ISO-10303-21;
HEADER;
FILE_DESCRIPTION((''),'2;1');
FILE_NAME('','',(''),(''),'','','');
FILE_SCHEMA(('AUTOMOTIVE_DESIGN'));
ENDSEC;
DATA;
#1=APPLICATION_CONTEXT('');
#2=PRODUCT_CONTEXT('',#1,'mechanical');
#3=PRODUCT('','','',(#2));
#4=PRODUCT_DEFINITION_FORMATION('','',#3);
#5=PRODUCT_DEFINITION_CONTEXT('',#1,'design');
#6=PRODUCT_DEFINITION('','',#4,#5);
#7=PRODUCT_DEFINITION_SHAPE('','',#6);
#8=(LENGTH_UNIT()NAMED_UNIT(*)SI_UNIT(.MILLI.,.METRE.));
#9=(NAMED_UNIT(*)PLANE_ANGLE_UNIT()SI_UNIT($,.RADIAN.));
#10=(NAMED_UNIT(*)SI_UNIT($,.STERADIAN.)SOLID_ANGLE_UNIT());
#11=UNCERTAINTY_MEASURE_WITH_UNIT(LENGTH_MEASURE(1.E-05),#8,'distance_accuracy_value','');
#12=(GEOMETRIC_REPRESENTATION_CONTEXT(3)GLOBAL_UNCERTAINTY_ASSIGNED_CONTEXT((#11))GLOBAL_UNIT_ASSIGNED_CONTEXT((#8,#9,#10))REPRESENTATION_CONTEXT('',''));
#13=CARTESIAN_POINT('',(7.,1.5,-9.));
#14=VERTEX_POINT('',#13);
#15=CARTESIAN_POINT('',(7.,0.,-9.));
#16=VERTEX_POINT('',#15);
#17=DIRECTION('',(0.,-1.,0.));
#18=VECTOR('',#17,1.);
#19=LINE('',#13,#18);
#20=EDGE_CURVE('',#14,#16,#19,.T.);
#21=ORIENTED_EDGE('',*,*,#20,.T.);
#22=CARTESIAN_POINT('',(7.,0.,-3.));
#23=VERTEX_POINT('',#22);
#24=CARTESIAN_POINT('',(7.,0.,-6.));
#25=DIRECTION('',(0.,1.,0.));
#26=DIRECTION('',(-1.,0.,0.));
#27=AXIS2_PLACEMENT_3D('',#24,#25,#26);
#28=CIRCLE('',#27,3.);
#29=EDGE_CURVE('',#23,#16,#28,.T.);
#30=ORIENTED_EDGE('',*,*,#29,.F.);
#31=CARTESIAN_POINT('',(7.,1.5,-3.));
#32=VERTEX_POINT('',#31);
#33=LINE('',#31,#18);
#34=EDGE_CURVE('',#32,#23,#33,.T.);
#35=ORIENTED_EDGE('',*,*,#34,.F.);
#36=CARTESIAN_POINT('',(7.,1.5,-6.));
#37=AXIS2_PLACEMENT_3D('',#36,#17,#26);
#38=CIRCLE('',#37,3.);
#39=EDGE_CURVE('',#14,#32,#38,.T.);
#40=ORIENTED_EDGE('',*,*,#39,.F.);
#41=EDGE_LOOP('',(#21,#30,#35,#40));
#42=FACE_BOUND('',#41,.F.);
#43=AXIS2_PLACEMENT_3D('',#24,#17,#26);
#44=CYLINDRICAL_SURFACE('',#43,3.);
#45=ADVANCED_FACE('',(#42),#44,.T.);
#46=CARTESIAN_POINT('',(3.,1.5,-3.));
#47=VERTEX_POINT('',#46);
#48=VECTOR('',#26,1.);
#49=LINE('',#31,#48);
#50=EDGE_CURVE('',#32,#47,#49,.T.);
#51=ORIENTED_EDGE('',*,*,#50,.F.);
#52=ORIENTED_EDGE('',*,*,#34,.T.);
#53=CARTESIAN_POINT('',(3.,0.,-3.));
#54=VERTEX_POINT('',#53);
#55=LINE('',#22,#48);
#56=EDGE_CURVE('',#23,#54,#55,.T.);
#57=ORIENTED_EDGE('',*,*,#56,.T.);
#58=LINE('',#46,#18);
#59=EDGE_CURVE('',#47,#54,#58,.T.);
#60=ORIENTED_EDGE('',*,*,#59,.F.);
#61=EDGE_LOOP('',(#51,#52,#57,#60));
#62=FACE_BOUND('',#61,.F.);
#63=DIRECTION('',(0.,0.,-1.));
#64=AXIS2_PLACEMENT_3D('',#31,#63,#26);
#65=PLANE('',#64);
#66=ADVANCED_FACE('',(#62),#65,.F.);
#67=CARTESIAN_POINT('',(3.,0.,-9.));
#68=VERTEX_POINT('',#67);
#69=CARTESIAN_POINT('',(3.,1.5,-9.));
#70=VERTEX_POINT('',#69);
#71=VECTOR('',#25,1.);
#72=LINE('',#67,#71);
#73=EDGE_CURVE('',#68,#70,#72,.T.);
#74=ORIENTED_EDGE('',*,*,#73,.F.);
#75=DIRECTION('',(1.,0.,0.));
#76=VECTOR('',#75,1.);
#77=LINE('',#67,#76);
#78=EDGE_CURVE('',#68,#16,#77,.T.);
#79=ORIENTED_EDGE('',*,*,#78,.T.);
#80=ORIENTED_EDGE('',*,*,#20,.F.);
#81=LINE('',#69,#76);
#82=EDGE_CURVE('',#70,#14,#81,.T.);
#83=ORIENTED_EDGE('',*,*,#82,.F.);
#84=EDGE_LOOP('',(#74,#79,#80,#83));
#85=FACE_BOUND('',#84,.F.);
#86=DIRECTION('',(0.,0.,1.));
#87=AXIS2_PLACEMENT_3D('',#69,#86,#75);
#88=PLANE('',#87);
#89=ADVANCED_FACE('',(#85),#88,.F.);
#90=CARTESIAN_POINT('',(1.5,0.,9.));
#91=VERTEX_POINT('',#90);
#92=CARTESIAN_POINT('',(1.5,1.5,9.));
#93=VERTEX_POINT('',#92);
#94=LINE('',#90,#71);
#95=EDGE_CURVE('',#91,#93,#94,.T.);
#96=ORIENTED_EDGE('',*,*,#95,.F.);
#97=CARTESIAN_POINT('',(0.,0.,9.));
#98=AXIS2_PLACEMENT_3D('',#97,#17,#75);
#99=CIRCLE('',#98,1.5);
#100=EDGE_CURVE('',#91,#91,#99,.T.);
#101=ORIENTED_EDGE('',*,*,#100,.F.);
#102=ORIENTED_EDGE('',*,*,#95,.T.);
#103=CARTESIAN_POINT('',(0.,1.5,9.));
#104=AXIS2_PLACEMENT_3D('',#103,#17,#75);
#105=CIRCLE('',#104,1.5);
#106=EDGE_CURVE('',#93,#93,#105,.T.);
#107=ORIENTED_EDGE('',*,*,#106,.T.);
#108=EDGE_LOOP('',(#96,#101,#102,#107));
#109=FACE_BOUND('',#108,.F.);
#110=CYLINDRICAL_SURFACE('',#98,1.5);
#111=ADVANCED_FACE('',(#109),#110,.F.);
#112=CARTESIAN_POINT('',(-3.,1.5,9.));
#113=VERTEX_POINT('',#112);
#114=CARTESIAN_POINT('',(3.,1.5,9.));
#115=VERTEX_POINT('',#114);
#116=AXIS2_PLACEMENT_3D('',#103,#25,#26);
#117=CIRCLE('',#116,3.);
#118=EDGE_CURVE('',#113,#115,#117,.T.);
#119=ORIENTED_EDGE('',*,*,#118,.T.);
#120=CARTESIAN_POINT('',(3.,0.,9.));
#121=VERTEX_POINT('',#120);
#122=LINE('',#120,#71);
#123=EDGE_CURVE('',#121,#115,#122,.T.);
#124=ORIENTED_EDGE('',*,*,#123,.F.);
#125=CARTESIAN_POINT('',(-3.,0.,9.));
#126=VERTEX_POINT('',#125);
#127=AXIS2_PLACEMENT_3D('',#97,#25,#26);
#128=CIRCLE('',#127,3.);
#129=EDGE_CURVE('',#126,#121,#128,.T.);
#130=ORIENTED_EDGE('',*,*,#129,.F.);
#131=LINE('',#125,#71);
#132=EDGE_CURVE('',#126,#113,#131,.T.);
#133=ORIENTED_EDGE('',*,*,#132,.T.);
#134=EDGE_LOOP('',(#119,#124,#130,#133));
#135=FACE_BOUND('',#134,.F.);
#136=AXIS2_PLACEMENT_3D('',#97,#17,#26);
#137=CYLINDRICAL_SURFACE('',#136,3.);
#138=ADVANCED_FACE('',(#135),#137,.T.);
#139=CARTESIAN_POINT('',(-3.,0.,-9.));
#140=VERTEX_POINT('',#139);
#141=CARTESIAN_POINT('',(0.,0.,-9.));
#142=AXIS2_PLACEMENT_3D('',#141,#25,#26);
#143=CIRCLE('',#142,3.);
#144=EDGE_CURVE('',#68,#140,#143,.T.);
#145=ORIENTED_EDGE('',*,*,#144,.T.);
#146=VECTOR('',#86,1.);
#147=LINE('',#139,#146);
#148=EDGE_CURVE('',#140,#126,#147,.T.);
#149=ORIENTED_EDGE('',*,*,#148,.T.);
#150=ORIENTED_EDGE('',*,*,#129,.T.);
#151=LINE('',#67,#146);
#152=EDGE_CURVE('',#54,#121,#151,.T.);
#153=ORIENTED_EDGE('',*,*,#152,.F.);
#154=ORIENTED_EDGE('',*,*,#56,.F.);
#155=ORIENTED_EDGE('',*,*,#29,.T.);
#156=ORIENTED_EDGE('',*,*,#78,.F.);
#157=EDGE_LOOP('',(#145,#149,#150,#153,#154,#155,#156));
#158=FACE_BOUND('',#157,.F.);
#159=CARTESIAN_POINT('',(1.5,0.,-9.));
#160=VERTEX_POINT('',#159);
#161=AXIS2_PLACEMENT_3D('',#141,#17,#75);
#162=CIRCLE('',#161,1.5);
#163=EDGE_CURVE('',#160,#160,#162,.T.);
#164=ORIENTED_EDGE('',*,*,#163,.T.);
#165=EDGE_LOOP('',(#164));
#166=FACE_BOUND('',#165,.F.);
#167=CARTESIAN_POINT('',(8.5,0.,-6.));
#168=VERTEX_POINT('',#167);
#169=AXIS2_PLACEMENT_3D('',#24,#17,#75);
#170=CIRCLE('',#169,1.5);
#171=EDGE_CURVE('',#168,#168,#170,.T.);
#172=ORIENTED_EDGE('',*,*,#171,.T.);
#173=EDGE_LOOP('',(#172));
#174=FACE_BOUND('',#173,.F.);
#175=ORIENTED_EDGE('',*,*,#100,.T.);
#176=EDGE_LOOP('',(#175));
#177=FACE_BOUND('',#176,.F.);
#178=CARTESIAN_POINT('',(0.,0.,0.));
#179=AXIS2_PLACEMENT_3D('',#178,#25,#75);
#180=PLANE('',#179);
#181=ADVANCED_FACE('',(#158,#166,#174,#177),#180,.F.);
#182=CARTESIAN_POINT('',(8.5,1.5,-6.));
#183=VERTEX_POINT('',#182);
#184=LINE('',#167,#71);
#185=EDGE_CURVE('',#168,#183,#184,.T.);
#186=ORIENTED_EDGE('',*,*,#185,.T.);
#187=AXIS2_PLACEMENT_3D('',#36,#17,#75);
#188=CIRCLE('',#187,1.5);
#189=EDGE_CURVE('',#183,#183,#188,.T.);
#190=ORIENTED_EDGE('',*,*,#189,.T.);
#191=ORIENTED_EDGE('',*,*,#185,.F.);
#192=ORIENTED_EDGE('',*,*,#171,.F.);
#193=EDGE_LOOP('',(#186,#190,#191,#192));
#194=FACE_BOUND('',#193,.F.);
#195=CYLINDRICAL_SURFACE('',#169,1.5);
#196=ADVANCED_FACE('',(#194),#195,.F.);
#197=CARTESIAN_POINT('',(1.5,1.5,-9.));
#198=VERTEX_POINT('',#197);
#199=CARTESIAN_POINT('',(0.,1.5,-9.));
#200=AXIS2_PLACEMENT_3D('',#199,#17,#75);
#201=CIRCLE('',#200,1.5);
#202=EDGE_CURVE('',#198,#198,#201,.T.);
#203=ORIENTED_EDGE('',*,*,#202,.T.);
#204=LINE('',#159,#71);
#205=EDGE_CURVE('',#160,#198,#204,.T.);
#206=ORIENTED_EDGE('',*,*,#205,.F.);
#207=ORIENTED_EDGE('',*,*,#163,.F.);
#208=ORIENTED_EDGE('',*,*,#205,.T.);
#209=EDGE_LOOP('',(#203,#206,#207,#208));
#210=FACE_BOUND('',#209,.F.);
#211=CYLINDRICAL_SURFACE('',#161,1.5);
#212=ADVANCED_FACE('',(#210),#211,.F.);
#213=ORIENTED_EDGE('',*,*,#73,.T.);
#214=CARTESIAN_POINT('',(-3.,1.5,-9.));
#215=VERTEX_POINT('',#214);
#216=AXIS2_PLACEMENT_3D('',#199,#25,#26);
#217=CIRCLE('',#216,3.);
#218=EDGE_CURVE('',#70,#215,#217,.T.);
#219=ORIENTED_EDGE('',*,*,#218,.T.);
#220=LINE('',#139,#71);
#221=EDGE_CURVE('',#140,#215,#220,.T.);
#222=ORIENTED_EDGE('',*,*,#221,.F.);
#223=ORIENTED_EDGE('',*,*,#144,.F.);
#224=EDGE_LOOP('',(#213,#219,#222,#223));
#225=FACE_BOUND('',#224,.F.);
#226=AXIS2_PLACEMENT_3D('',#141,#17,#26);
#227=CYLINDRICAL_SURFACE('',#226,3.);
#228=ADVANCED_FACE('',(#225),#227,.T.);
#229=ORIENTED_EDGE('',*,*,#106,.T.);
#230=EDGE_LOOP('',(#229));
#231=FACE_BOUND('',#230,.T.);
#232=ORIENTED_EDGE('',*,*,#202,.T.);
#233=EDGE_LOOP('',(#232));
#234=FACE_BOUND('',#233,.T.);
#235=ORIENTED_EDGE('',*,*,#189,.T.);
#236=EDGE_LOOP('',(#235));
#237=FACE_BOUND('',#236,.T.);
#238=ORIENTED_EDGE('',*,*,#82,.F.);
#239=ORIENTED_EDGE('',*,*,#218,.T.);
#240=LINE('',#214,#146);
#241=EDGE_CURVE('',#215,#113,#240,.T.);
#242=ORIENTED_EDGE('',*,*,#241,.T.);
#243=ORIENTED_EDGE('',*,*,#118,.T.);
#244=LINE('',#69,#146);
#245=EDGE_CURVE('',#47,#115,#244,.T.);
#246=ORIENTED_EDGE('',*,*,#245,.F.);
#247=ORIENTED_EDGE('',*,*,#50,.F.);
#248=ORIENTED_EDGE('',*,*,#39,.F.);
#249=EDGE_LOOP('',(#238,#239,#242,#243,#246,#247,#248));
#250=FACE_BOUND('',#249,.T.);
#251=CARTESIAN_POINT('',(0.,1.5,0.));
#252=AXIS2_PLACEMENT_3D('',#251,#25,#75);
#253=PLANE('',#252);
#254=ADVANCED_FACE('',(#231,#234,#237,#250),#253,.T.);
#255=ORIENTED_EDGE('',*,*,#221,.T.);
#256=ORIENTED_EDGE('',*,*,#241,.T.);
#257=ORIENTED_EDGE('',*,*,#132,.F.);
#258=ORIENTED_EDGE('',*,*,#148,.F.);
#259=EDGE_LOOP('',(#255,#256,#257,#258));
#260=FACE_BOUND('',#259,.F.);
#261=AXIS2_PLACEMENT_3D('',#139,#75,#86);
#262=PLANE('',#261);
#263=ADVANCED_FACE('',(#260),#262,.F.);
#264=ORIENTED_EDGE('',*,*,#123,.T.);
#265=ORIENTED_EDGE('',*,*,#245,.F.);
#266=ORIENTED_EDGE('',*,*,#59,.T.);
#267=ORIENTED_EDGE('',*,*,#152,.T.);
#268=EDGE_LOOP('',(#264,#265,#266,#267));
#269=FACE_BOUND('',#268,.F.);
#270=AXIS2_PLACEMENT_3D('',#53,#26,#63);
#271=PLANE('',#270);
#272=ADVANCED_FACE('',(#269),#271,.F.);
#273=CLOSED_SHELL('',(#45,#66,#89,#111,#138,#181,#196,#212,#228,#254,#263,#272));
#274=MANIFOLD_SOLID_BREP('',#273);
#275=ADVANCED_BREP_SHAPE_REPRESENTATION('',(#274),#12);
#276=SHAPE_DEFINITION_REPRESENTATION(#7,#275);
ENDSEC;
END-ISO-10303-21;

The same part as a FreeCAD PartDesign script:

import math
import FreeCAD as App
import Part
import Sketcher

V = App.Vector
Q = App.Units.Quantity


def add_polygon(sketch, points):
    """Adds a closed chain of lines whose ends are joined by coincident constraints."""
    first, n = sketch.GeometryCount, len(points)
    for a, b in zip(points, points[1:] + points[:1]):
        sketch.addGeometry(Part.LineSegment(App.Vector(*a, 0), App.Vector(*b, 0)), False)
    for i in range(n):
        sketch.addConstraint(Sketcher.Constraint("Coincident", first + i, 2, first + (i + 1) % n, 1))

doc = App.newDocument("Part")
body = doc.addObject("PartDesign::Body", "Body")
body.AllowCompound = True

# Sketch on XZ plane
sketch1 = doc.addObject("Sketcher::SketchObject", "Sketch")
body.addObject(sketch1)
sketch1.AttachmentSupport = (doc.XZ_Plane, [""])
sketch1.MapMode = "FlatFace"
sketch1.addGeometry(Part.LineSegment(V(-3, -9, 0), V(-3, 9, 0)), False)
sketch1.addGeometry(Part.ArcOfCircle(Part.Circle(V(0, 9, 0), V(0, 0, 1), 3), math.radians(0), math.radians(180)), False)
sketch1.addGeometry(Part.LineSegment(V(3, 9, 0), V(3, -9, 0)), False)
sketch1.addGeometry(Part.ArcOfCircle(Part.Circle(V(0, -9, 0), V(0, 0, 1), 3), math.radians(180), math.radians(360)), False)
sketch1.addGeometry(Part.Circle(V(7, -6, 0), V(0, 0, 1), 3), False)
sketch1.addConstraint(Sketcher.Constraint("Tangent", 0, 2, 1, 2))
sketch1.addConstraint(Sketcher.Constraint("Tangent", 1, 1, 2, 1))
sketch1.addConstraint(Sketcher.Constraint("Tangent", 2, 2, 3, 2))
sketch1.addConstraint(Sketcher.Constraint("Tangent", 3, 1, 0, 1))
sketch1.addConstraint(Sketcher.Constraint("Vertical", 0))
sketch1.addConstraint(Sketcher.Constraint("Vertical", 2))
sketch1.addConstraint(Sketcher.Constraint("Equal", 3, 4))
sketch1.addConstraint(Sketcher.Constraint("Symmetric", 1, 3, 3, 3, -1, 1))
sketch1.addConstraint(Sketcher.Constraint("Diameter", 4, Q("6 mm")))
sketch1.addConstraint(Sketcher.Constraint("DistanceY", 0, 1, 0, 2, Q("18 mm")))
sketch1.addConstraint(Sketcher.Constraint("DistanceY", 4, 3, -1, 1, Q("6 mm")))
sketch1.addConstraint(Sketcher.Constraint("DistanceX", 1, 1, 4, 3, Q("4 mm")))
pad1 = doc.addObject("PartDesign::Pad", "Pad")
body.addObject(pad1)
pad1.Profile = sketch1
pad1.Length = 1.5
pad1.Reversed = True

# Sketch on XZ plane
sketch2 = doc.addObject("Sketcher::SketchObject", "Sketch001")
body.addObject(sketch2)
sketch2.AttachmentSupport = (doc.XZ_Plane, [""])
sketch2.MapMode = "FlatFace"
sketch2.AttachmentOffset = App.Placement(V(0, 0, -1.5), App.Rotation())
add_polygon(sketch2, [(3, -9), (3, -3), (7, -3), (7, -9)])  # lines 0-3
sketch2.addGeometry(Part.Circle(V(0, -9, 0), V(0, 0, 1), 1.5), False)  # 4
sketch2.addGeometry(Part.Circle(V(0, 9, 0), V(0, 0, 1), 1.5), False)  # 5
sketch2.addConstraint(Sketcher.Constraint("Vertical", 0))
sketch2.addConstraint(Sketcher.Constraint("Horizontal", 1))
sketch2.addConstraint(Sketcher.Constraint("Vertical", 2))
sketch2.addConstraint(Sketcher.Constraint("Horizontal", 3))
sketch2.addConstraint(Sketcher.Constraint("Equal", 4, 5))
sketch2.addConstraint(Sketcher.Constraint("Symmetric", 4, 3, 5, 3, -1, 1))
sketch2.addConstraint(Sketcher.Constraint("PointOnObject", 4, 3, -2))
sketch2.addConstraint(Sketcher.Constraint("Horizontal", 4, 3, 2, 2))
sketch2.addConstraint(Sketcher.Constraint("Diameter", 4, Q("3 mm")))
sketch2.addConstraint(Sketcher.Constraint("DistanceX", 1, 1, 1, 2, Q("4 mm")))
sketch2.addConstraint(Sketcher.Constraint("DistanceY", 0, 1, 0, 2, Q("6 mm")))
sketch2.addConstraint(Sketcher.Constraint("DistanceX", -1, 1, 0, 2, Q("3 mm")))
sketch2.addConstraint(Sketcher.Constraint("DistanceY", 0, 2, -1, 1, Q("3 mm")))
pocket1 = doc.addObject("PartDesign::Pocket", "Pocket")
body.addObject(pocket1)
pocket1.Profile = sketch2
pocket1.Length = 1.5
pocket1.Reversed = True

# Sketch on XZ plane
sketch3 = doc.addObject("Sketcher::SketchObject", "Sketch002")
body.addObject(sketch3)
sketch3.AttachmentSupport = (doc.XZ_Plane, [""])
sketch3.MapMode = "FlatFace"
sketch3.AttachmentOffset = App.Placement(V(0, 0, -1.5), App.Rotation())
add_polygon(sketch3, [(3, -9), (3, -3), (7, -3), (7, -9)])  # lines 0-3
sketch3.addConstraint(Sketcher.Constraint("Vertical", 0))
sketch3.addConstraint(Sketcher.Constraint("Horizontal", 1))
sketch3.addConstraint(Sketcher.Constraint("Vertical", 2))
sketch3.addConstraint(Sketcher.Constraint("Horizontal", 3))
sketch3.addConstraint(Sketcher.Constraint("DistanceX", 1, 1, 1, 2, Q("4 mm")))
sketch3.addConstraint(Sketcher.Constraint("DistanceY", 0, 1, 0, 2, Q("6 mm")))
sketch3.addConstraint(Sketcher.Constraint("DistanceX", -1, 1, 0, 2, Q("3 mm")))
sketch3.addConstraint(Sketcher.Constraint("DistanceY", 0, 2, -1, 1, Q("3 mm")))
pad2 = doc.addObject("PartDesign::Pad", "Pad001")
body.addObject(pad2)
pad2.Profile = sketch3
pad2.Length = 1.5

# Sketch on XZ plane
sketch4 = doc.addObject("Sketcher::SketchObject", "Sketch003")
body.addObject(sketch4)
sketch4.AttachmentSupport = (doc.XZ_Plane, [""])
sketch4.MapMode = "FlatFace"
sketch4.AttachmentOffset = App.Placement(V(0, 0, -1.5), App.Rotation())
sketch4.addGeometry(Part.Circle(V(7, -6, 0), V(0, 0, 1), 1.5), False)
sketch4.addConstraint(Sketcher.Constraint("Diameter", 0, Q("3 mm")))
sketch4.addConstraint(Sketcher.Constraint("DistanceX", -1, 1, 0, 3, Q("7 mm")))
sketch4.addConstraint(Sketcher.Constraint("DistanceY", 0, 3, -1, 1, Q("6 mm")))
pocket2 = doc.addObject("PartDesign::Pocket", "Pocket001")
body.addObject(pocket2)
pocket2.Profile = sketch4
pocket2.Length = 1.5
pocket2.Reversed = True

# Sketch on XZ plane
sketch5 = doc.addObject("Sketcher::SketchObject", "Sketch004")
body.addObject(sketch5)
sketch5.AttachmentSupport = (doc.XZ_Plane, [""])
sketch5.MapMode = "FlatFace"
sketch5.addGeometry(Part.Circle(V(7, -6, 0), V(0, 0, 1), 1.5), False)
sketch5.addGeometry(Part.Circle(V(7, -6, 0), V(0, 0, 1), 0.1), False)
sketch5.addGeometry(Part.Circle(V(0, 9, 0), V(0, 0, 1), 1.5), False)
sketch5.addGeometry(Part.Circle(V(0, 9, 0), V(0, 0, 1), 0.1), False)
sketch5.addGeometry(Part.Circle(V(0, -9, 0), V(0, 0, 1), 1.5), False)
sketch5.addGeometry(Part.Circle(V(0, -9, 0), V(0, 0, 1), 0.1), False)
sketch5.addConstraint(Sketcher.Constraint("Coincident", 1, 3, 0, 3))
sketch5.addConstraint(Sketcher.Constraint("Coincident", 3, 3, 2, 3))
sketch5.addConstraint(Sketcher.Constraint("Coincident", 5, 3, 4, 3))
sketch5.addConstraint(Sketcher.Constraint("Equal", 0, 2))
sketch5.addConstraint(Sketcher.Constraint("Equal", 1, 3))
sketch5.addConstraint(Sketcher.Constraint("Equal", 2, 4))
sketch5.addConstraint(Sketcher.Constraint("Equal", 3, 5))
sketch5.addConstraint(Sketcher.Constraint("Symmetric", 2, 3, 4, 3, -1, 1))
sketch5.addConstraint(Sketcher.Constraint("PointOnObject", 2, 3, -2))
sketch5.addConstraint(Sketcher.Constraint("Diameter", 1, Q("0.2 mm")))
sketch5.addConstraint(Sketcher.Constraint("Diameter", 0, Q("3 mm")))
sketch5.addConstraint(Sketcher.Constraint("DistanceX", -1, 1, 0, 3, Q("7 mm")))
sketch5.addConstraint(Sketcher.Constraint("DistanceY", 0, 3, -1, 1, Q("6 mm")))
sketch5.addConstraint(Sketcher.Constraint("DistanceY", -1, 1, 2, 3, Q("9 mm")))
pad3 = doc.addObject("PartDesign::Pad", "Pad002")
body.addObject(pad3)
pad3.Profile = sketch5
pad3.Length = 1.5
pad3.Reversed = True

# Sketch on XZ plane
sketch6 = doc.addObject("Sketcher::SketchObject", "Sketch005")
body.addObject(sketch6)
sketch6.AttachmentSupport = (doc.XZ_Plane, [""])
sketch6.MapMode = "FlatFace"
sketch6.addGeometry(Part.Circle(V(0, 9, 0), V(0, 0, 1), 1.5), False)
sketch6.addGeometry(Part.Circle(V(0, 9, 0), V(0, 0, 1), 0.1), False)
sketch6.addGeometry(Part.Circle(V(0, -9, 0), V(0, 0, 1), 1.5), False)
sketch6.addGeometry(Part.Circle(V(0, -9, 0), V(0, 0, 1), 0.1), False)
sketch6.addGeometry(Part.Circle(V(7, -6, 0), V(0, 0, 1), 1.5), False)
sketch6.addGeometry(Part.Circle(V(7, -6, 0), V(0, 0, 1), 0.1), False)
sketch6.addConstraint(Sketcher.Constraint("Coincident", 1, 3, 0, 3))
sketch6.addConstraint(Sketcher.Constraint("Coincident", 3, 3, 2, 3))
sketch6.addConstraint(Sketcher.Constraint("Coincident", 5, 3, 4, 3))
sketch6.addConstraint(Sketcher.Constraint("Equal", 0, 2))
sketch6.addConstraint(Sketcher.Constraint("Equal", 1, 3))
sketch6.addConstraint(Sketcher.Constraint("Equal", 2, 4))
sketch6.addConstraint(Sketcher.Constraint("Equal", 3, 5))
sketch6.addConstraint(Sketcher.Constraint("Symmetric", 0, 3, 2, 3, -1, 1))
sketch6.addConstraint(Sketcher.Constraint("PointOnObject", 0, 3, -2))
sketch6.addConstraint(Sketcher.Constraint("Diameter", 0, Q("3 mm")))
sketch6.addConstraint(Sketcher.Constraint("DistanceY", 2, 3, 4, 3, Q("3 mm")))
sketch6.addConstraint(Sketcher.Constraint("Diameter", 1, Q("0.2 mm")))
sketch6.addConstraint(Sketcher.Constraint("DistanceY", -1, 1, 0, 3, Q("9 mm")))
sketch6.addConstraint(Sketcher.Constraint("DistanceX", -1, 1, 4, 3, Q("7 mm")))
pocket3 = doc.addObject("PartDesign::Pocket", "Pocket002")
body.addObject(pocket3)
pocket3.Profile = sketch6
pocket3.Length = 2

# Sketch on XZ plane
sketch7 = doc.addObject("Sketcher::SketchObject", "Sketch006")
body.addObject(sketch7)
sketch7.AttachmentSupport = (doc.XZ_Plane, [""])
sketch7.MapMode = "FlatFace"
sketch7.addGeometry(Part.Circle(V(0, -5, 0), V(0, 0, 1), 1.5), False)
sketch7.addConstraint(Sketcher.Constraint("PointOnObject", 0, 3, -2))
sketch7.addConstraint(Sketcher.Constraint("Diameter", 0, Q("3 mm")))
sketch7.addConstraint(Sketcher.Constraint("DistanceY", 0, 3, -1, 1, Q("5 mm")))
pocket4 = doc.addObject("PartDesign::Pocket", "Pocket003")
body.addObject(pocket4)
pocket4.Profile = sketch7
pocket4.Length = 2

# Sketch on XZ plane
sketch8 = doc.addObject("Sketcher::SketchObject", "Sketch007")
body.addObject(sketch8)
sketch8.AttachmentSupport = (doc.XZ_Plane, [""])
sketch8.MapMode = "FlatFace"
sketch8.addGeometry(Part.Circle(V(0, -5, 0), V(0, 0, 1), 1.5), False)
sketch8.addConstraint(Sketcher.Constraint("PointOnObject", 0, 3, -2))
sketch8.addConstraint(Sketcher.Constraint("Diameter", 0, Q("3 mm")))
sketch8.addConstraint(Sketcher.Constraint("DistanceY", 0, 3, -1, 1, Q("5 mm")))
pad4 = doc.addObject("PartDesign::Pad", "Pad003")
body.addObject(pad4)
pad4.Profile = sketch8
pad4.Length = 2
pad4.Reversed = True

# Sketch on XZ plane
sketch9 = doc.addObject("Sketcher::SketchObject", "Sketch008")
body.addObject(sketch9)
sketch9.AttachmentSupport = (doc.XZ_Plane, [""])
sketch9.MapMode = "FlatFace"
sketch9.AttachmentOffset = App.Placement(V(0, 0, -2), App.Rotation())
sketch9.addGeometry(Part.Circle(V(0, -5, 0), V(0, 0, 1), 1.5), False)
sketch9.addConstraint(Sketcher.Constraint("PointOnObject", 0, 3, -2))
sketch9.addConstraint(Sketcher.Constraint("Diameter", 0, Q("3 mm")))
sketch9.addConstraint(Sketcher.Constraint("DistanceY", 0, 3, -1, 1, Q("5 mm")))
pocket5 = doc.addObject("PartDesign::Pocket", "Pocket004")
body.addObject(pocket5)
pocket5.Profile = sketch9
pocket5.Length = 0.5
pocket5.Reversed = True

doc.recompute()
